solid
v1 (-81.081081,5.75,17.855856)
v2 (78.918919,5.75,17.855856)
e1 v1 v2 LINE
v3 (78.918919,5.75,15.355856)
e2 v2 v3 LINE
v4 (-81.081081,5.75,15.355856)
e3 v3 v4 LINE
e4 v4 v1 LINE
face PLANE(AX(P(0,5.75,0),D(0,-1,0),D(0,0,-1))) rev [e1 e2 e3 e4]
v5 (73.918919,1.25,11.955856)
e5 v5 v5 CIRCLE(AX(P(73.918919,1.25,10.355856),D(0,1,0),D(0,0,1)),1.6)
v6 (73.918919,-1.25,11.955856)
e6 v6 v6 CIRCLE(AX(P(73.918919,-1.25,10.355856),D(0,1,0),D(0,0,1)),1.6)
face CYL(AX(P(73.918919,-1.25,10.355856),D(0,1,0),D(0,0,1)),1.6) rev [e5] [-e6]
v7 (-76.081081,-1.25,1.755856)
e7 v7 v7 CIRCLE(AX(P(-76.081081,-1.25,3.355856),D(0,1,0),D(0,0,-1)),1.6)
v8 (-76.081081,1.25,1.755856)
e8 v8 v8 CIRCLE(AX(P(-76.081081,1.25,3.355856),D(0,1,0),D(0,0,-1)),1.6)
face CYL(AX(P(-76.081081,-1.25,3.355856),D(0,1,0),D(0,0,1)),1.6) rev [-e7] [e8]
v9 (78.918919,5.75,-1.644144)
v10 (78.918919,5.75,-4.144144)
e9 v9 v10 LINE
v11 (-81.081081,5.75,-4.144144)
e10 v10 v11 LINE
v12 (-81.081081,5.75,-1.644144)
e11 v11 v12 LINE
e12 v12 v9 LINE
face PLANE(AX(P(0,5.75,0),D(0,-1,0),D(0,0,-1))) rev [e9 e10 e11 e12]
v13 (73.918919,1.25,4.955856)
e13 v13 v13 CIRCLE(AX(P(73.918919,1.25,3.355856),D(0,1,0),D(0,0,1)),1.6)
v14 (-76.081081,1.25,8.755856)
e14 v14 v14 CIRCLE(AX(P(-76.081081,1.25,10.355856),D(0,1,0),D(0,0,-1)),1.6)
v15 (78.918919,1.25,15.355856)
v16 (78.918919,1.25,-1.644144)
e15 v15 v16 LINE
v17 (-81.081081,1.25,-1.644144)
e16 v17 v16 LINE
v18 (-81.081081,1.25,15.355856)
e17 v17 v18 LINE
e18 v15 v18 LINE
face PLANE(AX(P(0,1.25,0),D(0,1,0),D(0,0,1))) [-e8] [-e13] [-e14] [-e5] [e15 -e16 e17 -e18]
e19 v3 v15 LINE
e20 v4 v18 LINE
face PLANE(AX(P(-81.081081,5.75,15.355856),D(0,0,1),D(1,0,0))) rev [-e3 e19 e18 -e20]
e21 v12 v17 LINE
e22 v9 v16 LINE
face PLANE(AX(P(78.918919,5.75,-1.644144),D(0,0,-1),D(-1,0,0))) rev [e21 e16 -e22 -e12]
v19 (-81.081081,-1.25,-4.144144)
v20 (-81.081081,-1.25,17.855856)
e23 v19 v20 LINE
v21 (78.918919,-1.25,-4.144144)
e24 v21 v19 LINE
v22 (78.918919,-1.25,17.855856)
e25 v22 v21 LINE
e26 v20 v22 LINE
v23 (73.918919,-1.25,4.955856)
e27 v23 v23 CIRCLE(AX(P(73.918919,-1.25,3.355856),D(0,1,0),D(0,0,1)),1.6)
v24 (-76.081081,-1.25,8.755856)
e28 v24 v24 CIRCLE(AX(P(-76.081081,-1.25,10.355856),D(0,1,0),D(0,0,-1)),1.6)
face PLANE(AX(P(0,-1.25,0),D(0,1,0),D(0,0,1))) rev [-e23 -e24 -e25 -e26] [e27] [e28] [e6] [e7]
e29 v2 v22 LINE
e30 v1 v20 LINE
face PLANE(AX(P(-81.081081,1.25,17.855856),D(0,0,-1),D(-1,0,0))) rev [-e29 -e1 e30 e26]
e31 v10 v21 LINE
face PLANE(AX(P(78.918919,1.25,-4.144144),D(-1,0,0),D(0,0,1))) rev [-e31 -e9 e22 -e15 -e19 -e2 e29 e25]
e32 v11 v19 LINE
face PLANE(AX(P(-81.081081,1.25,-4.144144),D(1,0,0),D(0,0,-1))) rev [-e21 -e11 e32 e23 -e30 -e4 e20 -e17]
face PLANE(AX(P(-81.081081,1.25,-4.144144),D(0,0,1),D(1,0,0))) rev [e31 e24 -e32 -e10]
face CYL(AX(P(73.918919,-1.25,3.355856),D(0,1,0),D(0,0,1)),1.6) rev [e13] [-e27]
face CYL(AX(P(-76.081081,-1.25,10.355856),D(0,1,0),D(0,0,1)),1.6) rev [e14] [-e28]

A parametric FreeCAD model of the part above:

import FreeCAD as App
import Part
import Sketcher
Q = App.Units.Quantity

doc = App.newDocument("Part")
body = doc.addObject("PartDesign::Body", "Body")

# Sketch on XZ plane
sketch1 = body.newObject("Sketcher::SketchObject", "Sketch")
sketch1.AttachmentSupport = (doc.getObject("XZ_Plane"), [""])
sketch1.MapMode = "FlatFace"
sketch1.addGeometry([
    Part.LineSegment(App.Vector(-81, -4, 0), App.Vector(-81, 18, 0)),
    Part.LineSegment(App.Vector(-81, 18, 0), App.Vector(79, 18, 0)),
    Part.LineSegment(App.Vector(79, 18, 0), App.Vector(79, -4, 0)),
    Part.LineSegment(App.Vector(79, -4, 0), App.Vector(-81, -4, 0)),
], False)
sketch1.addConstraint([
    Sketcher.Constraint("Coincident", 0, 2, 1, 1),
    Sketcher.Constraint("Coincident", 1, 2, 2, 1),
    Sketcher.Constraint("Coincident", 2, 2, 3, 1),
    Sketcher.Constraint("Coincident", 3, 2, 0, 1),
    Sketcher.Constraint("Vertical", 0),
    Sketcher.Constraint("Horizontal", 1),
    Sketcher.Constraint("Vertical", 2),
    Sketcher.Constraint("Horizontal", 3),
    Sketcher.Constraint("DistanceX", 1, 1, 1, 2, Q("160 mm")),
    Sketcher.Constraint("DistanceY", 0, 1, 0, 2, Q("22 mm")),
    Sketcher.Constraint("DistanceX", 0, 2, -1, 1, Q("81.081081 mm")),
    Sketcher.Constraint("DistanceY", -1, 1, 0, 2, Q("17.855856 mm")),
])
pad1 = body.newObject("PartDesign::Pad", "Pad")
pad1.Profile = sketch1
pad1.Length = 2.5
pad1.Midplane = True

# Sketch on XZ plane
sketch2 = body.newObject("Sketcher::SketchObject", "Sketch001")
sketch2.AttachmentSupport = (doc.getObject("XZ_Plane"), [""])
sketch2.MapMode = "FlatFace"
sketch2.AttachmentOffset = App.Placement(App.Vector(0, 0, -1.25), App.Rotation())
sketch2.addGeometry([
    Part.LineSegment(App.Vector(-81.1, -4.1, 0), App.Vector(-81.1, -1.6, 0)),  # 0
    Part.LineSegment(App.Vector(-81.1, -1.6, 0), App.Vector(78.9, -1.6, 0)),  # 1
    Part.LineSegment(App.Vector(78.9, -1.6, 0), App.Vector(78.9, -4.1, 0)),  # 2
    Part.LineSegment(App.Vector(78.9, -4.1, 0), App.Vector(-81.1, -4.1, 0)),  # 3
    Part.LineSegment(App.Vector(-81.1, 15.4, 0), App.Vector(-81.1, 17.9, 0)),  # 4
    Part.LineSegment(App.Vector(-81.1, 17.9, 0), App.Vector(78.9, 17.9, 0)),  # 5
    Part.LineSegment(App.Vector(78.9, 17.9, 0), App.Vector(78.9, 15.4, 0)),  # 6
    Part.LineSegment(App.Vector(78.9, 15.4, 0), App.Vector(-81.1, 15.4, 0)),  # 7
], False)
sketch2.addConstraint([
    Sketcher.Constraint("Coincident", 0, 2, 1, 1),
    Sketcher.Constraint("Coincident", 1, 2, 2, 1),
    Sketcher.Constraint("Coincident", 2, 2, 3, 1),
    Sketcher.Constraint("Coincident", 3, 2, 0, 1),
    Sketcher.Constraint("Coincident", 4, 2, 5, 1),
    Sketcher.Constraint("Coincident", 5, 2, 6, 1),
    Sketcher.Constraint("Coincident", 6, 2, 7, 1),
    Sketcher.Constraint("Coincident", 7, 2, 4, 1),
    Sketcher.Constraint("Vertical", 0),
    Sketcher.Constraint("Horizontal", 1),
    Sketcher.Constraint("Vertical", 2),
    Sketcher.Constraint("Horizontal", 3),
    Sketcher.Constraint("Vertical", 4),
    Sketcher.Constraint("Horizontal", 5),
    Sketcher.Constraint("Vertical", 6),
    Sketcher.Constraint("Horizontal", 7),
    Sketcher.Constraint("Vertical", 3, 2, 4, 2),
    Sketcher.Constraint("Vertical", 2, 2, 5, 2),
    Sketcher.Constraint("Equal", 2, 4),
    Sketcher.Constraint("DistanceX", 1, 1, 1, 2, Q("160 mm")),
    Sketcher.Constraint("DistanceY", 0, 1, 0, 2, Q("2.5 mm")),
    Sketcher.Constraint("DistanceY", 3, 2, 4, 2, Q("22 mm")),
    Sketcher.Constraint("DistanceX", 0, 2, -1, 1, Q("81.081081 mm")),
    Sketcher.Constraint("DistanceY", 0, 2, -1, 1, Q("1.644144 mm")),
])
pad2 = body.newObject("PartDesign::Pad", "Pad001")
pad2.Profile = sketch2
pad2.Length = 4.5
pad2.Reversed = True

# Sketch on XZ plane
sketch3 = body.newObject("Sketcher::SketchObject", "Sketch002")
sketch3.AttachmentSupport = (doc.getObject("XZ_Plane"), [""])
sketch3.MapMode = "FlatFace"
sketch3.AttachmentOffset = App.Placement(App.Vector(0, 0, -1.25), App.Rotation())
sketch3.addGeometry([
    Part.Circle(App.Vector(73.9, 3.4, 0), App.Vector(0, 0, 1), 1.6),
    Part.Circle(App.Vector(73.9, 10.4, 0), App.Vector(0, 0, 1), 1.6),
    Part.Circle(App.Vector(-76.1, 10.4, 0), App.Vector(0, 0, 1), 1.6),
    Part.Circle(App.Vector(-76.1, 3.4, 0), App.Vector(0, 0, 1), 1.6),
], False)
sketch3.addConstraint([
    Sketcher.Constraint("Equal", 0, 1),
    Sketcher.Constraint("Equal", 1, 2),
    Sketcher.Constraint("Equal", 2, 3),
    Sketcher.Constraint("Horizontal", 1, 3, 2, 3),
    Sketcher.Constraint("Horizontal", 0, 3, 3, 3),
    Sketcher.Constraint("Vertical", 0, 3, 1, 3),
    Sketcher.Constraint("Vertical", 2, 3, 3, 3),
    Sketcher.Constraint("Diameter", 0, Q("3.2 mm")),
    Sketcher.Constraint("DistanceY", 0, 3, 1, 3, Q("7 mm")),
    Sketcher.Constraint("DistanceX", 2, 3, 1, 3, Q("150 mm")),
    Sketcher.Constraint("DistanceX", -1, 1, 0, 3, Q("73.918919 mm")),
    Sketcher.Constraint("DistanceY", -1, 1, 0, 3, Q("3.355856 mm")),
])
pocket1 = body.newObject("PartDesign::Pocket", "Pocket")
pocket1.Profile = sketch3
pocket1.Type = "ThroughAll"
pocket1.Reversed = True

doc.recompute()
